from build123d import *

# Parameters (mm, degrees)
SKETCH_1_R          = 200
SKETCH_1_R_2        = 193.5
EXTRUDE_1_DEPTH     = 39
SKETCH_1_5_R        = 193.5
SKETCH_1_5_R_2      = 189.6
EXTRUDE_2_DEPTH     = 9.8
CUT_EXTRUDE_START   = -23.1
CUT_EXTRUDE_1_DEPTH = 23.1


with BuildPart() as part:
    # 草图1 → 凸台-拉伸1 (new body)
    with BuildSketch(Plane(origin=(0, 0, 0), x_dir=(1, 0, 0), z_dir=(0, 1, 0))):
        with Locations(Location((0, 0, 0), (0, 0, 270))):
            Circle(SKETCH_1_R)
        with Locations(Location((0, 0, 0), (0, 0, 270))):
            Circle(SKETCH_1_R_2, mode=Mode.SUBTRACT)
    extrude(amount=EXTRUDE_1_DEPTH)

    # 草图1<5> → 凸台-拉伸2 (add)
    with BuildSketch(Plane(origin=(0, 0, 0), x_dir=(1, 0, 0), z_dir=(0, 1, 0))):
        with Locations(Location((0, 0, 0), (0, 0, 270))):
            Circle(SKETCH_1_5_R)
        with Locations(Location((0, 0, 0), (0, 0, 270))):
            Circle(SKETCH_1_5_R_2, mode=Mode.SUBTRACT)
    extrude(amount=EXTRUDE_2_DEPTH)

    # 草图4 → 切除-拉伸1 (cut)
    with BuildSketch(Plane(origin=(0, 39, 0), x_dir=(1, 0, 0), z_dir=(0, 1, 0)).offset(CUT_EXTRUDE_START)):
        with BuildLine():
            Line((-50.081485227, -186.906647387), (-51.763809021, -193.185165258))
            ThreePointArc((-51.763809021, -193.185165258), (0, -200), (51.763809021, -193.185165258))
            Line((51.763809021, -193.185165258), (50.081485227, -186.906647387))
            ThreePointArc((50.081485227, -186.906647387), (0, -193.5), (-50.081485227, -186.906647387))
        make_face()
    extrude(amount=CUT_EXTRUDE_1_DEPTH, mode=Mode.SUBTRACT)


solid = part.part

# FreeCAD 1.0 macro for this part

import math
import FreeCAD as App
import Part
import Sketcher

V = App.Vector
Q = App.Units.Quantity

doc = App.newDocument("Part")
body = doc.addObject("PartDesign::Body", "Body")

sketch1 = doc.addObject("Sketcher::SketchObject", "Sketch")
body.addObject(sketch1)
sketch1.AttachmentSupport = (doc.XZ_Plane, [""])
sketch1.MapMode = "FlatFace"
sketch1.addGeometry(Part.Circle(V(0, 0, 0), V(0, 0, 1), 200), False)
sketch1.addGeometry(Part.Circle(V(0, 0, 0), V(0, 0, 1), 194), False)
sketch1.addConstraint(Sketcher.Constraint("Coincident", 0, 3, -1, 1))
sketch1.addConstraint(Sketcher.Constraint("Coincident", 1, 3, -1, 1))
sketch1.addConstraint(Sketcher.Constraint("Diameter", 0, Q("400 mm")))
sketch1.addConstraint(Sketcher.Constraint("Diameter", 1, Q("387 mm")))
pad1 = doc.addObject("PartDesign::Pad", "Pad")
body.addObject(pad1)
pad1.Profile = sketch1
pad1.Length = 39
pad1.Reversed = True

sketch2 = doc.addObject("Sketcher::SketchObject", "Sketch001")
body.addObject(sketch2)
sketch2.AttachmentSupport = (doc.XZ_Plane, [""])
sketch2.MapMode = "FlatFace"
sketch2.addGeometry(Part.Circle(V(0, 0, 0), V(0, 0, 1), 194), False)
sketch2.addGeometry(Part.Circle(V(0, 0, 0), V(0, 0, 1), 190), False)
sketch2.addConstraint(Sketcher.Constraint("Coincident", 0, 3, -1, 1))
sketch2.addConstraint(Sketcher.Constraint("Coincident", 1, 3, -1, 1))
sketch2.addConstraint(Sketcher.Constraint("Diameter", 0, Q("387 mm")))
sketch2.addConstraint(Sketcher.Constraint("Diameter", 1, Q("379.2 mm")))
pad2 = doc.addObject("PartDesign::Pad", "Pad001")
body.addObject(pad2)
pad2.Profile = sketch2
pad2.Length = 9.8
pad2.Reversed = True

sketch3 = doc.addObject("Sketcher::SketchObject", "Sketch002")
body.addObject(sketch3)
sketch3.AttachmentSupport = (doc.XZ_Plane, [""])
sketch3.MapMode = "FlatFace"
sketch3.AttachmentOffset = App.Placement(V(0, 0, -15.9), App.Rotation())
sketch3.addGeometry(Part.LineSegment(V(-50, 187, 0), V(-52, 193, 0)), False)
sketch3.addGeometry(Part.ArcOfCircle(Part.Circle(V(0, 0, 0), V(0, 0, 1), 200), math.radians(75), math.radians(105)), False)
sketch3.addGeometry(Part.LineSegment(V(52, 193, 0), V(50, 187, 0)), False)
sketch3.addGeometry(Part.ArcOfCircle(Part.Circle(V(0, 0, 0), V(0, 0, 1), 193), math.radians(75), math.radians(105)), False)
sketch3.addConstraint(Sketcher.Constraint("Coincident", 0, 2, 1, 2))
sketch3.addConstraint(Sketcher.Constraint("Coincident", 1, 1, 2, 1))
sketch3.addConstraint(Sketcher.Constraint("Coincident", 2, 2, 3, 1))
sketch3.addConstraint(Sketcher.Constraint("Coincident", 3, 2, 0, 1))
sketch3.addConstraint(Sketcher.Constraint("Coincident", 1, 3, -1, 1))
sketch3.addConstraint(Sketcher.Constraint("Coincident", 3, 3, -1, 1))
sketch3.addConstraint(Sketcher.Constraint("Horizontal", 0, 2, 1, 1))
sketch3.addConstraint(Sketcher.Constraint("Horizontal", 2, 2, 3, 2))
sketch3.addConstraint(Sketcher.Constraint("Radius", 1, Q("200 mm")))
sketch3.addConstraint(Sketcher.Constraint("Radius", 3, Q("193.5 mm")))
sketch3.addConstraint(Sketcher.Constraint("Angle", 0, Q("105 deg")))
sketch3.addConstraint(Sketcher.Constraint("DistanceX", 0, 2, -1, 1, Q("51.763809 mm")))
pocket1 = doc.addObject("PartDesign::Pocket", "Pocket")
body.addObject(pocket1)
pocket1.Profile = sketch3
pocket1.Length = 23.1

doc.recompute()
